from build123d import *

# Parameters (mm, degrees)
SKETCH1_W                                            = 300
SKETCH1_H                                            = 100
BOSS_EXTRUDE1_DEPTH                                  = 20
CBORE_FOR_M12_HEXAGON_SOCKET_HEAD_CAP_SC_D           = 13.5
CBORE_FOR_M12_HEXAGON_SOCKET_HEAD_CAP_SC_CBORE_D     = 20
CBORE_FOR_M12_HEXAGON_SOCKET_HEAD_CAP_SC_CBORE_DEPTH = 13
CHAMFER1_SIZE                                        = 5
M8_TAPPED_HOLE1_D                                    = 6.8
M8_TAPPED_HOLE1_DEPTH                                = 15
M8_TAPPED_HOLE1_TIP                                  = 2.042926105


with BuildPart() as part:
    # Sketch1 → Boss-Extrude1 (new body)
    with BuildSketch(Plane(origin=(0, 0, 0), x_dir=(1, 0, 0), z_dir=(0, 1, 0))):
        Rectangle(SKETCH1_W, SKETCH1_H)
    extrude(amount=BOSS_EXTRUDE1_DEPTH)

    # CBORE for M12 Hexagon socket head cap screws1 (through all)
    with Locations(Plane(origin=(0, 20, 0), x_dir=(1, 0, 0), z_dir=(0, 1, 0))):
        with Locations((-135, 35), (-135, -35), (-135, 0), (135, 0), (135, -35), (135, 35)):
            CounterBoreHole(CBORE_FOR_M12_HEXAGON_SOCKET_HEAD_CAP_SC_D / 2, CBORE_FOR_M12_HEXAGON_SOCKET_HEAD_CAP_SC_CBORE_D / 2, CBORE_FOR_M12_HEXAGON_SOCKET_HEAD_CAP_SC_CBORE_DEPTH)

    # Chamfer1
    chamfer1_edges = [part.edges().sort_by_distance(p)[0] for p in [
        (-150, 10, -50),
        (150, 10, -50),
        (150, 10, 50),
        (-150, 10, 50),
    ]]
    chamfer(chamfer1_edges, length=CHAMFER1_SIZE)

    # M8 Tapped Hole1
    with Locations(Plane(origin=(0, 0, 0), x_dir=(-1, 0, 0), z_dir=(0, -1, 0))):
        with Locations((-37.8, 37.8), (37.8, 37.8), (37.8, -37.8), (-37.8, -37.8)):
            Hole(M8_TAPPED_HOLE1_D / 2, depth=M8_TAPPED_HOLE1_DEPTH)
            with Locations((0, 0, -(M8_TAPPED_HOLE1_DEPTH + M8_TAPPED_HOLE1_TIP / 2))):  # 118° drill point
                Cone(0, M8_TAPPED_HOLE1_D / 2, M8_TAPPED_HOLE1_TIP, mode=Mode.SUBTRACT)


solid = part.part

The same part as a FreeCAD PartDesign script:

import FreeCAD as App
import Part
import Sketcher
Q = App.Units.Quantity


def edges_at(feature, points):
    """Names of the edges that pass closest to the given points."""
    edges = feature.Shape.Edges
    near = lambda p: min(range(len(edges)), key=lambda i: edges[i].distToShape(Part.Vertex(*p))[0])
    return sorted({f"Edge{near(p) + 1}" for p in points})


def add_polygon(sketch, points):
    """Adds a closed chain of lines whose ends are joined by coincident constraints."""
    first, n = sketch.GeometryCount, len(points)
    for a, b in zip(points, points[1:] + points[:1]):
        sketch.addGeometry(Part.LineSegment(App.Vector(*a, 0), App.Vector(*b, 0)), False)
    for i in range(n):
        sketch.addConstraint(Sketcher.Constraint("Coincident", first + i, 2, first + (i + 1) % n, 1))

doc = App.newDocument("Part")
body = doc.addObject("PartDesign::Body", "Body")

# Sketch on XZ plane
sketch1 = body.newObject("Sketcher::SketchObject", "Sketch")
sketch1.AttachmentSupport = (doc.getObject("XZ_Plane"), [""])
sketch1.MapMode = "FlatFace"
add_polygon(sketch1, [(-150, -50), (-150, 50), (150, 50), (150, -50)])  # lines 0-3
sketch1.addConstraint([
    Sketcher.Constraint("Vertical", 0),
    Sketcher.Constraint("Horizontal", 1),
    Sketcher.Constraint("Vertical", 2),
    Sketcher.Constraint("Horizontal", 3),
    Sketcher.Constraint("Symmetric", 0, 2, 2, 2, -1, 1),
    Sketcher.Constraint("DistanceX", 1, 1, 1, 2, Q("300 mm")),
    Sketcher.Constraint("DistanceY", 0, 1, 0, 2, Q("100 mm")),
])
pad1 = body.newObject("PartDesign::Pad", "Pad")
pad1.Profile = sketch1
pad1.Length = 20
pad1.Reversed = True

# Sketch on XZ plane
sketch2 = body.newObject("Sketcher::SketchObject", "Sketch001")
sketch2.AttachmentSupport = (doc.getObject("XZ_Plane"), [""])
sketch2.MapMode = "FlatFace"
sketch2.AttachmentOffset = App.Placement(App.Vector(0, 0, -20), App.Rotation())
sketch2.addGeometry([
    Part.Circle(App.Vector(-135, -35, 0), App.Vector(0, 0, 1), 6.75),  # 0
    Part.Circle(App.Vector(-135, 35, 0), App.Vector(0, 0, 1), 6.75),  # 1
    Part.Circle(App.Vector(-135, 0, 0), App.Vector(0, 0, 1), 6.75),  # 2
    Part.Circle(App.Vector(135, 0, 0), App.Vector(0, 0, 1), 6.75),  # 3
    Part.Circle(App.Vector(135, 35, 0), App.Vector(0, 0, 1), 6.75),  # 4
    Part.Circle(App.Vector(135, -35, 0), App.Vector(0, 0, 1), 6.75),  # 5
], False)
sketch2.addConstraint([
    Sketcher.Constraint("Equal", 0, 1),
    Sketcher.Constraint("Equal", 1, 2),
    Sketcher.Constraint("Equal", 2, 3),
    Sketcher.Constraint("Equal", 3, 4),
    Sketcher.Constraint("Equal", 4, 5),
    Sketcher.Constraint("Symmetric", 2, 3, 3, 3, -1, 1),
    Sketcher.Constraint("Symmetric", 0, 3, 4, 3, -1, 1),
    Sketcher.Constraint("Symmetric", 1, 3, 5, 3, -1, 1),
    Sketcher.Constraint("Symmetric", 1, 3, 4, 3, -2),
    Sketcher.Constraint("PointOnObject", 2, 3, -1),
    Sketcher.Constraint("Vertical", 1, 3, 2, 3),
    Sketcher.Constraint("Diameter", 0, Q("13.5 mm")),
    Sketcher.Constraint("DistanceX", 0, 3, -1, 1, Q("135 mm")),
    Sketcher.Constraint("DistanceY", 0, 3, -1, 1, Q("35 mm")),
])
doc.recompute()
hole = body.newObject("PartDesign::Hole", "Hole")
hole.Profile = sketch2
hole.ThreadType = "None"
hole.Diameter = 13.5
hole.DepthType = "ThroughAll"
hole.HoleCutType = "Counterbore"
hole.HoleCutDiameter = 20
hole.HoleCutDepth = 13
hole.Reversed = True
doc.recompute()

chamfer = body.newObject("PartDesign::Chamfer", "Chamfer")
chamfer.Base = (hole, edges_at(hole, [
    (-150, 10, -50),
    (150, 10, -50),
    (150, 10, 50),
    (-150, 10, 50),
]))
chamfer.Size = 5

# Sketch on XZ plane
sketch3 = body.newObject("Sketcher::SketchObject", "Sketch002")
sketch3.AttachmentSupport = (doc.getObject("XZ_Plane"), [""])
sketch3.MapMode = "FlatFace"
sketch3.addGeometry([
    Part.Circle(App.Vector(37.8, -37.8, 0), App.Vector(0, 0, 1), 3.4),
    Part.Circle(App.Vector(-37.8, -37.8, 0), App.Vector(0, 0, 1), 3.4),
    Part.Circle(App.Vector(-37.8, 37.8, 0), App.Vector(0, 0, 1), 3.4),
    Part.Circle(App.Vector(37.8, 37.8, 0), App.Vector(0, 0, 1), 3.4),
], False)
sketch3.addConstraint([
    Sketcher.Constraint("Equal", 0, 1),
    Sketcher.Constraint("Equal", 1, 2),
    Sketcher.Constraint("Equal", 2, 3),
    Sketcher.Constraint("Symmetric", 0, 3, 2, 3, -1, 1),
    Sketcher.Constraint("Symmetric", 1, 3, 3, 3, -1, 1),
    Sketcher.Constraint("Symmetric", 0, 3, 1, 3, -2),
    Sketcher.Constraint("Diameter", 0, Q("6.8 mm")),
    Sketcher.Constraint("DistanceX", -1, 1, 0, 3, Q("37.8 mm")),
    Sketcher.Constraint("DistanceY", 0, 3, -1, 1, Q("37.8 mm")),
])
doc.recompute()
hole2 = body.newObject("PartDesign::Hole", "Hole001")
hole2.Profile = sketch3
hole2.ThreadType = "None"
hole2.Diameter = 6.8
hole2.DepthType = "Dimension"
hole2.Depth = 15
hole2.DrillPoint = "Angled"
hole2.DrillPointAngle = 118

doc.recompute()
